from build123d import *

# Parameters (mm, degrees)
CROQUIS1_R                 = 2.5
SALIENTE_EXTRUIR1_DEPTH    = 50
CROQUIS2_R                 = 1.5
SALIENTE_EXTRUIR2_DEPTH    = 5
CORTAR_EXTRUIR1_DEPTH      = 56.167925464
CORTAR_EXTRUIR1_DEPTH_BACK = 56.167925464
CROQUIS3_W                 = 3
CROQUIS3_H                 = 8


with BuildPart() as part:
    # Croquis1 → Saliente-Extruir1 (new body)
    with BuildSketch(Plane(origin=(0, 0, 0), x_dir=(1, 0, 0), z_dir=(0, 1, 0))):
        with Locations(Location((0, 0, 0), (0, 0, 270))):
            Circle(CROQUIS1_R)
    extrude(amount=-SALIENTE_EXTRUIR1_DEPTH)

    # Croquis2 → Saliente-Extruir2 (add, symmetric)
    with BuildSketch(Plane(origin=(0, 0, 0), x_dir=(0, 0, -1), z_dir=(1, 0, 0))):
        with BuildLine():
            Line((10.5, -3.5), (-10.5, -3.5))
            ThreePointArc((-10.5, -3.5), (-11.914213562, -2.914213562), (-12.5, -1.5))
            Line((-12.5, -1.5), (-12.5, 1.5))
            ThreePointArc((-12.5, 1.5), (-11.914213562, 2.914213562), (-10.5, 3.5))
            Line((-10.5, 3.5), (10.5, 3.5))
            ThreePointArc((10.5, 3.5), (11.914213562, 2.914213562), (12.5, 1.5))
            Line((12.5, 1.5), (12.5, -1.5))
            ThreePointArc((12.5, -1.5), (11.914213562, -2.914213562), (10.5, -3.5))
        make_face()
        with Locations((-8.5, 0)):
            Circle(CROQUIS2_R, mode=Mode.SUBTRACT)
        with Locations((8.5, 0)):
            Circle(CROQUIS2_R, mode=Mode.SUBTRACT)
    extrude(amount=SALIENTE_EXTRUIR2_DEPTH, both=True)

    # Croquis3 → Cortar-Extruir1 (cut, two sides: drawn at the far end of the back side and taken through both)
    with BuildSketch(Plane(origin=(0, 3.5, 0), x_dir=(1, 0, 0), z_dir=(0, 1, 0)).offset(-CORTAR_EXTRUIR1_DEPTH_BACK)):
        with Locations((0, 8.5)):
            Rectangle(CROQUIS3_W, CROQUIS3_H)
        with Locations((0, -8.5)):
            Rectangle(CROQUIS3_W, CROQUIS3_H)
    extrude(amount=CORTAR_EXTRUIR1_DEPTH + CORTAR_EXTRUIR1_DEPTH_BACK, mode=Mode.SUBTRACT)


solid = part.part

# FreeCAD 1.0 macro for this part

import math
import FreeCAD as App
import Part
import Sketcher
Q = App.Units.Quantity

doc = App.newDocument("Part")
params = doc.addObject("Spreadsheet::Sheet", "Params")
for row, (alias, value) in enumerate([
    ("sketch1_diameter", "5 mm"),
    ("pad1_length", "50 mm"),
    ("sketch2_diameter", "3 mm"),
    ("sketch2_radius", "2 mm"),
    ("sketch2_width", "3 mm"),
    ("sketch2_height", "21 mm"),
    ("pad2_length", "10 mm"),
    ("sketch3_width", "3 mm"),
    ("sketch3_height", "8 mm"),
], start=1):
    params.set(f"A{row}", alias)
    params.set(f"B{row}", "=" + value)
    params.setAlias(f"B{row}", alias)

body = doc.addObject("PartDesign::Body", "Body")

# Sketch on XZ plane
sketch1 = doc.addObject("Sketcher::SketchObject", "Sketch")
body.addObject(sketch1)
sketch1.AttachmentSupport = (doc.XZ_Plane, [""])
sketch1.MapMode = "FlatFace"
sketch1.addGeometry(Part.Circle(App.Vector(0, 0, 0), App.Vector(0, 0, 1), 2.5), False)
sketch1.addConstraint([
    Sketcher.Constraint("Coincident", 0, 3, -1, 1),
    Sketcher.Constraint("Diameter", 0, Q("5 mm")),
])
sketch1.setExpression("Constraints[1]", "Params.sketch1_diameter")
pad1 = doc.addObject("PartDesign::Pad", "Pad")
body.addObject(pad1)
pad1.Profile = sketch1
pad1.setExpression("Length", "Params.pad1_length")

# Sketch on YZ plane
sketch2 = doc.addObject("Sketcher::SketchObject", "Sketch001")
body.addObject(sketch2)
sketch2.AttachmentSupport = (doc.YZ_Plane, [""])
sketch2.MapMode = "FlatFace"
sketch2.addGeometry([
    Part.LineSegment(App.Vector(-3.5, 10.5, 0), App.Vector(-3.5, -10.5, 0)),  # 0
    Part.ArcOfCircle(Part.Circle(App.Vector(-1.5, -10.5, 0), App.Vector(0, 0, 1), 2), math.radians(-180), math.radians(-90)),  # 1
    Part.LineSegment(App.Vector(-1.5, -12.5, 0), App.Vector(1.5, -12.5, 0)),  # 2
    Part.ArcOfCircle(Part.Circle(App.Vector(1.5, -10.5, 0), App.Vector(0, 0, 1), 2), math.radians(-90), math.radians(0)),  # 3
    Part.LineSegment(App.Vector(3.5, -10.5, 0), App.Vector(3.5, 10.5, 0)),  # 4
    Part.ArcOfCircle(Part.Circle(App.Vector(1.5, 10.5, 0), App.Vector(0, 0, 1), 2), math.radians(0), math.radians(90)),  # 5
    Part.LineSegment(App.Vector(1.5, 12.5, 0), App.Vector(-1.5, 12.5, 0)),  # 6
    Part.ArcOfCircle(Part.Circle(App.Vector(-1.5, 10.5, 0), App.Vector(0, 0, 1), 2), math.radians(90), math.radians(180)),  # 7
    Part.Circle(App.Vector(0, -8.5, 0), App.Vector(0, 0, 1), 1.5),  # 8
    Part.Circle(App.Vector(0, 8.5, 0), App.Vector(0, 0, 1), 1.5),  # 9
], False)
sketch2.addConstraint([
    Sketcher.Constraint("Tangent", 0, 2, 1, 1),
    Sketcher.Constraint("Tangent", 1, 2, 2, 1),
    Sketcher.Constraint("Tangent", 2, 2, 3, 1),
    Sketcher.Constraint("Tangent", 3, 2, 4, 1),
    Sketcher.Constraint("Tangent", 4, 2, 5, 1),
    Sketcher.Constraint("Tangent", 5, 2, 6, 1),
    Sketcher.Constraint("Tangent", 6, 2, 7, 1),
    Sketcher.Constraint("Tangent", 7, 2, 0, 1),
    Sketcher.Constraint("Vertical", 0),
    Sketcher.Constraint("Horizontal", 2),
    Sketcher.Constraint("Vertical", 4),
    Sketcher.Constraint("Horizontal", 6),
    Sketcher.Constraint("Equal", 1, 3),
    Sketcher.Constraint("Equal", 3, 5),
    Sketcher.Constraint("Equal", 5, 7),
    Sketcher.Constraint("Equal", 8, 9),
    Sketcher.Constraint("Symmetric", 1, 3, 5, 3, -1, 1),
    Sketcher.Constraint("Symmetric", 8, 3, 9, 3, -1, 1),
    Sketcher.Constraint("PointOnObject", 8, 3, -2),
    Sketcher.Constraint("Diameter", 8, Q("3 mm")),
    Sketcher.Constraint("Radius", 1, Q("2 mm")),
    Sketcher.Constraint("DistanceX", 2, 1, 2, 2, Q("3 mm")),
    Sketcher.Constraint("DistanceY", 0, 2, 0, 1, Q("21 mm")),
    Sketcher.Constraint("DistanceY", 1, 3, 8, 3, Q("2 mm")),
])
sketch2.setExpression("Constraints[19]", "Params.sketch2_diameter")
sketch2.setExpression("Constraints[20]", "Params.sketch2_radius")
sketch2.setExpression("Constraints[21]", "Params.sketch2_width")
sketch2.setExpression("Constraints[22]", "Params.sketch2_height")
pad2 = doc.addObject("PartDesign::Pad", "Pad001")
body.addObject(pad2)
pad2.Profile = sketch2
pad2.setExpression("Length", "Params.pad2_length")
pad2.Midplane = True

# Sketch on XZ plane
sketch3 = doc.addObject("Sketcher::SketchObject", "Sketch002")
body.addObject(sketch3)
sketch3.AttachmentSupport = (doc.XZ_Plane, [""])
sketch3.MapMode = "FlatFace"
sketch3.AttachmentOffset = App.Placement(App.Vector(0, 0, -3.5), App.Rotation())
sketch3.addGeometry([
    Part.LineSegment(App.Vector(-1.5, -12.5, 0), App.Vector(-1.5, -4.5, 0)),  # 0
    Part.LineSegment(App.Vector(-1.5, -4.5, 0), App.Vector(1.5, -4.5, 0)),  # 1
    Part.LineSegment(App.Vector(1.5, -4.5, 0), App.Vector(1.5, -12.5, 0)),  # 2
    Part.LineSegment(App.Vector(1.5, -12.5, 0), App.Vector(-1.5, -12.5, 0)),  # 3
    Part.LineSegment(App.Vector(-1.5, 4.5, 0), App.Vector(-1.5, 12.5, 0)),  # 4
    Part.LineSegment(App.Vector(-1.5, 12.5, 0), App.Vector(1.5, 12.5, 0)),  # 5
    Part.LineSegment(App.Vector(1.5, 12.5, 0), App.Vector(1.5, 4.5, 0)),  # 6
    Part.LineSegment(App.Vector(1.5, 4.5, 0), App.Vector(-1.5, 4.5, 0)),  # 7
], False)
sketch3.addConstraint([
    Sketcher.Constraint("Coincident", 0, 2, 1, 1),
    Sketcher.Constraint("Coincident", 1, 2, 2, 1),
    Sketcher.Constraint("Coincident", 2, 2, 3, 1),
    Sketcher.Constraint("Coincident", 3, 2, 0, 1),
    Sketcher.Constraint("Coincident", 4, 2, 5, 1),
    Sketcher.Constraint("Coincident", 5, 2, 6, 1),
    Sketcher.Constraint("Coincident", 6, 2, 7, 1),
    Sketcher.Constraint("Coincident", 7, 2, 4, 1),
    Sketcher.Constraint("Vertical", 0),
    Sketcher.Constraint("Horizontal", 1),
    Sketcher.Constraint("Vertical", 2),
    Sketcher.Constraint("Horizontal", 3),
    Sketcher.Constraint("Vertical", 4),
    Sketcher.Constraint("Horizontal", 5),
    Sketcher.Constraint("Vertical", 6),
    Sketcher.Constraint("Horizontal", 7),
    Sketcher.Constraint("Symmetric", 2, 2, 4, 2, -1, 1),
    Sketcher.Constraint("Symmetric", 0, 2, 6, 2, -1, 1),
    Sketcher.Constraint("Vertical", 3, 2, 4, 2),
    Sketcher.Constraint("DistanceX", 1, 1, 1, 2, Q("3 mm")),
    Sketcher.Constraint("DistanceY", 0, 1, 0, 2, Q("8 mm")),
    Sketcher.Constraint("DistanceY", 0, 2, 4, 2, Q("17 mm")),
])
sketch3.setExpression("Constraints[19]", "Params.sketch3_width")
sketch3.setExpression("Constraints[20]", "Params.sketch3_height")
pocket1 = doc.addObject("PartDesign::Pocket", "Pocket")
body.addObject(pocket1)
pocket1.Profile = sketch3
pocket1.Type = "ThroughAll"
pocket1.Midplane = True

doc.recompute()
